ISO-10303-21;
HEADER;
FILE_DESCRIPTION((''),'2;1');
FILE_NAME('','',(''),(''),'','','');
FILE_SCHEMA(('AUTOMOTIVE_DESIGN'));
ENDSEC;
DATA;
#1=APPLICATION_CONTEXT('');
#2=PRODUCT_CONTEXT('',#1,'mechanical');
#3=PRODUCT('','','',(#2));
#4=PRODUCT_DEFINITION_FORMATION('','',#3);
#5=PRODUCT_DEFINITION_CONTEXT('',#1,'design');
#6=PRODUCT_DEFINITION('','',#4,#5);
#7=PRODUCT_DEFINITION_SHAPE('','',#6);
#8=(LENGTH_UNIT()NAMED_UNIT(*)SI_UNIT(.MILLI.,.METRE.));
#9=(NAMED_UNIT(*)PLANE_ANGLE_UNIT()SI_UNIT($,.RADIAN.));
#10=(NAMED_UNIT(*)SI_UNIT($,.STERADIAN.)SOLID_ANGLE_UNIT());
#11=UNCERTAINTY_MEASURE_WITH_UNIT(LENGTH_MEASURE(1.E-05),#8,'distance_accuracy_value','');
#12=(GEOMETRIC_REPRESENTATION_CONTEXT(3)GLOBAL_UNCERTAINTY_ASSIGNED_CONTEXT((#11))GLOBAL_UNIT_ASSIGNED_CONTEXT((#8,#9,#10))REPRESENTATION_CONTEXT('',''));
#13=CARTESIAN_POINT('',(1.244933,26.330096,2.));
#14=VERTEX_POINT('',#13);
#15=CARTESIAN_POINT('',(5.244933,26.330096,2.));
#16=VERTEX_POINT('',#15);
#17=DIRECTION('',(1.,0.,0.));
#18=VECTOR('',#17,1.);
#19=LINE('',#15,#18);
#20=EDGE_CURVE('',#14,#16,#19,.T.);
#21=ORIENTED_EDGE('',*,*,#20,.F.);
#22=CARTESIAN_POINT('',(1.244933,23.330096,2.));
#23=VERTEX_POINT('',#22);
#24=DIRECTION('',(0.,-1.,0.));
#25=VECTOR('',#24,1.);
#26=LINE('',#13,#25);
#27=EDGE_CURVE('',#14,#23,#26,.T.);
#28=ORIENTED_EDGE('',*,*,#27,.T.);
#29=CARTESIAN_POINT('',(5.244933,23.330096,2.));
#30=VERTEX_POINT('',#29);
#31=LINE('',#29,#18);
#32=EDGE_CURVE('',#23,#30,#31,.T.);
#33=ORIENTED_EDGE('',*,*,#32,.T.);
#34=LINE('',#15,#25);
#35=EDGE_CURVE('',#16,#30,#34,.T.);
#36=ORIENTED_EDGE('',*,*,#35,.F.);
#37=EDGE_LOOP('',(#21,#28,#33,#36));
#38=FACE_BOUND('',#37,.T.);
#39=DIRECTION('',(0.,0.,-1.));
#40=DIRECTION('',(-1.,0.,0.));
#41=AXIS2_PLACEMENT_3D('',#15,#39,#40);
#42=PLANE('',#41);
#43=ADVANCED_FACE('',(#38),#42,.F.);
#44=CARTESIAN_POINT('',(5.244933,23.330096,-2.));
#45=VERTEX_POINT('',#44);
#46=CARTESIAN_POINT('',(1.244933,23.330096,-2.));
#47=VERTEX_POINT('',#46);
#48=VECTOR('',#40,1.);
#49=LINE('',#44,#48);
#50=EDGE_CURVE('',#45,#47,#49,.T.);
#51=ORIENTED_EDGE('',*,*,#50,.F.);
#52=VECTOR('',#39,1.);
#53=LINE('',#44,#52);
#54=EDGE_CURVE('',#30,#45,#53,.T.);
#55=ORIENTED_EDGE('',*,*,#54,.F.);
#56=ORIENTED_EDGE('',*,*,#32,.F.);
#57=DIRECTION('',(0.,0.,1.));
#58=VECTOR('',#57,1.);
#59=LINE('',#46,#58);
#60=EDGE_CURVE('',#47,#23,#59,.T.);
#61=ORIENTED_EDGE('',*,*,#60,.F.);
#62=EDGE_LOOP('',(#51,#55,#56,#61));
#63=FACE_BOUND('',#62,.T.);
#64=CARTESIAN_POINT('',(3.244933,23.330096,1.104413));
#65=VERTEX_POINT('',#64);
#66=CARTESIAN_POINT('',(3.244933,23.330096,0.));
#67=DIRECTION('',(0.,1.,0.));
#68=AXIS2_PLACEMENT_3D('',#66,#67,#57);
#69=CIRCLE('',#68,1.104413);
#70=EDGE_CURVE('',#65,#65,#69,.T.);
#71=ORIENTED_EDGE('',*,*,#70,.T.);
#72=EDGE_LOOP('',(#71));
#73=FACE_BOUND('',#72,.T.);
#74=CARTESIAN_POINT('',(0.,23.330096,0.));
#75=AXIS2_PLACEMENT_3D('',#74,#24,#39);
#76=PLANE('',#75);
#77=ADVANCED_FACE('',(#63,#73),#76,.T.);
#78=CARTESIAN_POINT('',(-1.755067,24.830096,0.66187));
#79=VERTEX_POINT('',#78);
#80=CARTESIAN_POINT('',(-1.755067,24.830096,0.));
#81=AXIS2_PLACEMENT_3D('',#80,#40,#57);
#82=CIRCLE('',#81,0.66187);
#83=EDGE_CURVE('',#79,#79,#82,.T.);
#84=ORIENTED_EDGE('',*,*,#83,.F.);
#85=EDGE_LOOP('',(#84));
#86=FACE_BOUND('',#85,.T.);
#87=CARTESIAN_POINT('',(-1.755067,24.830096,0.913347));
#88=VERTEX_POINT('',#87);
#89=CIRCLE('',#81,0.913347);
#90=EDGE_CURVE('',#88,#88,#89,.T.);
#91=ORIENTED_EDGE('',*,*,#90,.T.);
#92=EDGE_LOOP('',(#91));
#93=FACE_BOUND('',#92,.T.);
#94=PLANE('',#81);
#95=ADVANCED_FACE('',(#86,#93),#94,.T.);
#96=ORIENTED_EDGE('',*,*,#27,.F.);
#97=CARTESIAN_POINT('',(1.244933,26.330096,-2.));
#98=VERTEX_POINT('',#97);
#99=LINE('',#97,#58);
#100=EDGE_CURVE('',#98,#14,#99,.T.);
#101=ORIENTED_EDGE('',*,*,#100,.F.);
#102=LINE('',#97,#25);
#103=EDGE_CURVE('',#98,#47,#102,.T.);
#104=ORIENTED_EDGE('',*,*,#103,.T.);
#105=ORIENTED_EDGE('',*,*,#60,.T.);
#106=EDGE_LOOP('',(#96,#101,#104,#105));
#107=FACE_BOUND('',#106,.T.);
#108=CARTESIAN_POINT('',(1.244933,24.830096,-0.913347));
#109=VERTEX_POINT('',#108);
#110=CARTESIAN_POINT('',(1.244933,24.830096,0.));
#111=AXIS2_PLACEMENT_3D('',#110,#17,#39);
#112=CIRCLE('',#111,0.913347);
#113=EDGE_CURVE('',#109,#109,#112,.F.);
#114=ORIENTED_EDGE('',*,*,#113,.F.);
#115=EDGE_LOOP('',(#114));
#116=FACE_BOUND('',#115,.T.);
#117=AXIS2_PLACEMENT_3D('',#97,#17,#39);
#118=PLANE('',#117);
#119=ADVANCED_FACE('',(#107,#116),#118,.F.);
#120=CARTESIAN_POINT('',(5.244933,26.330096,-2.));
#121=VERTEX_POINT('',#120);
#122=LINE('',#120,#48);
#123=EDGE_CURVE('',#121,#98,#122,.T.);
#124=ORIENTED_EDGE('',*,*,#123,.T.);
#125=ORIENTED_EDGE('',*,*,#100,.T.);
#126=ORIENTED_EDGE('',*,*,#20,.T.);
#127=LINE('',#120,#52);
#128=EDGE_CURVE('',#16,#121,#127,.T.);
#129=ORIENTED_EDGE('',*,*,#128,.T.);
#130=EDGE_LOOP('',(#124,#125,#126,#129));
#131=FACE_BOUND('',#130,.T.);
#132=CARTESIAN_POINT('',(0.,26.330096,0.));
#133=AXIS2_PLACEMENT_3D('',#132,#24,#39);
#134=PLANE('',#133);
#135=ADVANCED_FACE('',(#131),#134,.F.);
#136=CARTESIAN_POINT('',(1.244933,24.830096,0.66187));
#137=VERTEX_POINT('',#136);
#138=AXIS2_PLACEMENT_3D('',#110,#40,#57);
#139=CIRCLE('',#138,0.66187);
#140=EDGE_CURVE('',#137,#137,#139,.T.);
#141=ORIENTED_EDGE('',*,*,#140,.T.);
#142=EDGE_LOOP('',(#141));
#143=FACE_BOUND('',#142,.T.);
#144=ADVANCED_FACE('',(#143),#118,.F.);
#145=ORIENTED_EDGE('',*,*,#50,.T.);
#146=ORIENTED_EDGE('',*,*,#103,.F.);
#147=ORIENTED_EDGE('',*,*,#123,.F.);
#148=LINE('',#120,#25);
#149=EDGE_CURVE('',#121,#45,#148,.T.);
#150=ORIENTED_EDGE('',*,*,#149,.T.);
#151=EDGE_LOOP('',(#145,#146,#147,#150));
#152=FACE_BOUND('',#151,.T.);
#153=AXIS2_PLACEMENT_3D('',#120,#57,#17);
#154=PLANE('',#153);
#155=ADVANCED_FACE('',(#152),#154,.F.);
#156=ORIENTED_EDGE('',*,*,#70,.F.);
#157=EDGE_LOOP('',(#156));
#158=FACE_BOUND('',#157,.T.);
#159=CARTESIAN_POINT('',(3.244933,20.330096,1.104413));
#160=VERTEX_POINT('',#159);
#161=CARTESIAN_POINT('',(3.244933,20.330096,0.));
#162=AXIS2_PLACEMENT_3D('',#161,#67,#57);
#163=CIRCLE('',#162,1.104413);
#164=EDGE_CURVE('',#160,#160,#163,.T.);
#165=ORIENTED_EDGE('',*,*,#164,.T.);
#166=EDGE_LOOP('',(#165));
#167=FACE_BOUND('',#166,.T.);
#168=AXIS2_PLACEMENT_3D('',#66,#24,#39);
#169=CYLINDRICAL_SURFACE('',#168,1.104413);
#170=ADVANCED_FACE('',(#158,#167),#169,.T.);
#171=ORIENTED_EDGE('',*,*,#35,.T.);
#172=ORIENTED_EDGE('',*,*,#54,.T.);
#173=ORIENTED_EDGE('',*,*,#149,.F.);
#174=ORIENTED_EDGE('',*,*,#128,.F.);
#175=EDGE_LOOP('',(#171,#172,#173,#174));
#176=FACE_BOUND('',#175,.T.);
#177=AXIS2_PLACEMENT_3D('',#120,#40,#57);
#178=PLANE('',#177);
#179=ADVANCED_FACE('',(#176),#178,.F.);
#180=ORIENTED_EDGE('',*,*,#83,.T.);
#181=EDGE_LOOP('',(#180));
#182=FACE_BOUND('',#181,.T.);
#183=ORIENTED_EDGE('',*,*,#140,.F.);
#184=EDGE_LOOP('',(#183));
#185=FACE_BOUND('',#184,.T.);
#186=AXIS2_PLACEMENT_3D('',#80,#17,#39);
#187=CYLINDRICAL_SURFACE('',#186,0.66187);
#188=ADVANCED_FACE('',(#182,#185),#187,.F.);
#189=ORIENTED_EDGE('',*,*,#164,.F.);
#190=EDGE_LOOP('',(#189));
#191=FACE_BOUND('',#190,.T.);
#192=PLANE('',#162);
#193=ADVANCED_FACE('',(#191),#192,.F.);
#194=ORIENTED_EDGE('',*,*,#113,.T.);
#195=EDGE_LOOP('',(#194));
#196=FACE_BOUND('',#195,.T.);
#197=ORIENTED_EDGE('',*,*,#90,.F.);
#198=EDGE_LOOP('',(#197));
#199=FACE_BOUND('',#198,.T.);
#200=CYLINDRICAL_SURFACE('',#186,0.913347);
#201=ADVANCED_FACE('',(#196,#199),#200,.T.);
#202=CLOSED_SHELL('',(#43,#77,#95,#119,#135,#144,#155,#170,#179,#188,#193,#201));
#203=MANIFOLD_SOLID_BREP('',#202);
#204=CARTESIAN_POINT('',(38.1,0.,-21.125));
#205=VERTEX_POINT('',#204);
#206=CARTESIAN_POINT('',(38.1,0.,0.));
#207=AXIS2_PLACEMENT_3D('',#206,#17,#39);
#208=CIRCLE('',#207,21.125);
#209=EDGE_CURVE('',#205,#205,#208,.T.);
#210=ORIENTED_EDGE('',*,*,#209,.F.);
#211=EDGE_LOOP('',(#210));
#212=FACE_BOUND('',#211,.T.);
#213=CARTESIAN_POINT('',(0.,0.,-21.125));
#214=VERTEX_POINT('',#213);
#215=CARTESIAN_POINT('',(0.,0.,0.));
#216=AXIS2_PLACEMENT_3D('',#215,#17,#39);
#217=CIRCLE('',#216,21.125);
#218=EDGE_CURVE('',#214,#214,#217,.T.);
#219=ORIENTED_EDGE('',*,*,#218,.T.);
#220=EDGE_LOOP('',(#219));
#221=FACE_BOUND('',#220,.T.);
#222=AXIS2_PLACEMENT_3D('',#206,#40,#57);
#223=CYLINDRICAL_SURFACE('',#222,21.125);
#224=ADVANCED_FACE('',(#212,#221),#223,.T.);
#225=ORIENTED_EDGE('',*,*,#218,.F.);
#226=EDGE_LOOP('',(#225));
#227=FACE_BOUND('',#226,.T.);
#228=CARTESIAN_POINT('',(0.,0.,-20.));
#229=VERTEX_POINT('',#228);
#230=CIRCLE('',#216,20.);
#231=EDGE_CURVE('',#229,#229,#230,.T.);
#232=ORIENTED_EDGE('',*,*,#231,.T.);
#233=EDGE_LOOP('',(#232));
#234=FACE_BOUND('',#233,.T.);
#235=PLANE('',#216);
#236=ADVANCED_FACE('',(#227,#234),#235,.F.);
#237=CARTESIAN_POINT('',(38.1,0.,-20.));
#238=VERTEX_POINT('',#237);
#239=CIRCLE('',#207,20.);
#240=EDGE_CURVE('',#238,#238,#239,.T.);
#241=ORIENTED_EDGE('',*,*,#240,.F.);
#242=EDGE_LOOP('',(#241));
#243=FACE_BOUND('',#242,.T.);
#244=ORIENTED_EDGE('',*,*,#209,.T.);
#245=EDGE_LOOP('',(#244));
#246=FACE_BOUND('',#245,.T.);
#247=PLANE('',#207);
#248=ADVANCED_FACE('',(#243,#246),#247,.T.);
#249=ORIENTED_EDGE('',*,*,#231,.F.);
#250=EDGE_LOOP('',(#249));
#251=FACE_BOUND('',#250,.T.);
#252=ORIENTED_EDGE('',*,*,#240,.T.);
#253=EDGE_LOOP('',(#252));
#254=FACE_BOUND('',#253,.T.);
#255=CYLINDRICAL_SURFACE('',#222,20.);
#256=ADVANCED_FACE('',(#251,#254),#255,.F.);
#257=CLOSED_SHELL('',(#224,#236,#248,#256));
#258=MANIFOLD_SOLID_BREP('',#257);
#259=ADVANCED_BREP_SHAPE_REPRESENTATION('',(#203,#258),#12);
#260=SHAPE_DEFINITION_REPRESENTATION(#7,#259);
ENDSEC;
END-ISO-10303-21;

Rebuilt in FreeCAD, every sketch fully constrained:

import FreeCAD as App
import Part
import Sketcher

V = App.Vector

doc = App.newDocument("Part")
body = doc.addObject("PartDesign::Body", "Body")

# Sketch on YZ plane
sketch1 = body.newObject("Sketcher::SketchObject", "Sketch")
sketch1.AttachmentSupport = (doc.getObject("YZ_Plane"), [""])
sketch1.MapMode = "FlatFace"
sketch1.addGeometry(Part.Circle(V(0, 0, 0), V(0, 0, 1), 21.125), False)
sketch1.addGeometry(Part.Circle(V(0, 0, 0), V(0, 0, 1), 20), False)
sketch1.addConstraint(Sketcher.Constraint("Coincident", 0, 3, -1, 1))
sketch1.addConstraint(Sketcher.Constraint("Coincident", 1, 3, -1, 1))
sketch1.addConstraint(Sketcher.Constraint("Diameter", 1, 40.0))
sketch1.addConstraint(Sketcher.Constraint("Diameter", 0, 42.25))
pad1 = body.newObject("PartDesign::Pad", "Pad")
pad1.Profile = sketch1
pad1.Length = 38.1
body2 = doc.addObject("PartDesign::Body", "Body001")

# Sketch on XZ plane
sketch2 = body2.newObject("Sketcher::SketchObject", "Sketch001")
sketch2.AttachmentSupport = (doc.getObject("XZ_Plane001"), [""])
sketch2.MapMode = "FlatFace"
sketch2.AttachmentOffset = App.Placement(V(0, 0, -20.330096), App.Rotation())
sketch2.addGeometry(Part.Circle(V(3.244933, 0, 0), V(0, 0, 1), 1.104413), False)
sketch2.addConstraint(Sketcher.Constraint("PointOnObject", 0, 3, -1))
sketch2.addConstraint(Sketcher.Constraint("Diameter", 0, 2.208825))
sketch2.addConstraint(Sketcher.Constraint("DistanceX", -1, 1, 0, 3, 3.244933))
pad2 = body2.newObject("PartDesign::Pad", "Pad001")
pad2.Profile = sketch2
pad2.Length = 3
pad2.Reversed = True

# Sketch on XZ plane
sketch3 = body2.newObject("Sketcher::SketchObject", "Sketch002")
sketch3.AttachmentSupport = (doc.getObject("XZ_Plane001"), [""])
sketch3.MapMode = "FlatFace"
sketch3.AttachmentOffset = App.Placement(V(0, 0, -23.330096), App.Rotation())
sketch3.addGeometry(Part.LineSegment(V(1.244933, -2, 0), V(1.244933, 2, 0)), False)
sketch3.addGeometry(Part.LineSegment(V(1.244933, 2, 0), V(5.244933, 2, 0)), False)
sketch3.addGeometry(Part.LineSegment(V(5.244933, 2, 0), V(5.244933, -2, 0)), False)
sketch3.addGeometry(Part.LineSegment(V(5.244933, -2, 0), V(1.244933, -2, 0)), False)
sketch3.addConstraint(Sketcher.Constraint("Coincident", 0, 2, 1, 1))
sketch3.addConstraint(Sketcher.Constraint("Coincident", 1, 2, 2, 1))
sketch3.addConstraint(Sketcher.Constraint("Coincident", 2, 2, 3, 1))
sketch3.addConstraint(Sketcher.Constraint("Coincident", 3, 2, 0, 1))
sketch3.addConstraint(Sketcher.Constraint("Vertical", 0))
sketch3.addConstraint(Sketcher.Constraint("Horizontal", 1))
sketch3.addConstraint(Sketcher.Constraint("Vertical", 2))
sketch3.addConstraint(Sketcher.Constraint("Horizontal", 3))
sketch3.addConstraint(Sketcher.Constraint("Equal", 3, 0))
sketch3.addConstraint(Sketcher.Constraint("DistanceX", 1, 1, 1, 2, 4.0))
sketch3.addConstraint(Sketcher.Constraint("DistanceY", -1, 1, 0, 2, 2.0))
sketch3.addConstraint(Sketcher.Constraint("DistanceX", -1, 1, 0, 2, 1.244933))
pad3 = body2.newObject("PartDesign::Pad", "Pad002")
pad3.Profile = sketch3
pad3.Length = 3
pad3.Reversed = True

# Sketch on YZ plane
sketch4 = body2.newObject("Sketcher::SketchObject", "Sketch003")
sketch4.AttachmentSupport = (doc.getObject("YZ_Plane001"), [""])
sketch4.MapMode = "FlatFace"
sketch4.AttachmentOffset = App.Placement(V(0, 0, 1.244933), App.Rotation())
sketch4.addGeometry(Part.Circle(V(24.830096, 0, 0), V(0, 0, 1), 0.913347), False)
sketch4.addGeometry(Part.Circle(V(24.830096, 0, 0), V(0, 0, 1), 0.66187), False)
sketch4.addConstraint(Sketcher.Constraint("Coincident", 1, 3, 0, 3))
sketch4.addConstraint(Sketcher.Constraint("PointOnObject", 0, 3, -1))
sketch4.addConstraint(Sketcher.Constraint("Diameter", 1, 1.32374))
sketch4.addConstraint(Sketcher.Constraint("Diameter", 0, 1.826694))
sketch4.addConstraint(Sketcher.Constraint("DistanceX", -1, 1, 0, 3, 24.830096))
pad4 = body2.newObject("PartDesign::Pad", "Pad003")
pad4.Profile = sketch4
pad4.Length = 3
pad4.Reversed = True

doc.recompute()
